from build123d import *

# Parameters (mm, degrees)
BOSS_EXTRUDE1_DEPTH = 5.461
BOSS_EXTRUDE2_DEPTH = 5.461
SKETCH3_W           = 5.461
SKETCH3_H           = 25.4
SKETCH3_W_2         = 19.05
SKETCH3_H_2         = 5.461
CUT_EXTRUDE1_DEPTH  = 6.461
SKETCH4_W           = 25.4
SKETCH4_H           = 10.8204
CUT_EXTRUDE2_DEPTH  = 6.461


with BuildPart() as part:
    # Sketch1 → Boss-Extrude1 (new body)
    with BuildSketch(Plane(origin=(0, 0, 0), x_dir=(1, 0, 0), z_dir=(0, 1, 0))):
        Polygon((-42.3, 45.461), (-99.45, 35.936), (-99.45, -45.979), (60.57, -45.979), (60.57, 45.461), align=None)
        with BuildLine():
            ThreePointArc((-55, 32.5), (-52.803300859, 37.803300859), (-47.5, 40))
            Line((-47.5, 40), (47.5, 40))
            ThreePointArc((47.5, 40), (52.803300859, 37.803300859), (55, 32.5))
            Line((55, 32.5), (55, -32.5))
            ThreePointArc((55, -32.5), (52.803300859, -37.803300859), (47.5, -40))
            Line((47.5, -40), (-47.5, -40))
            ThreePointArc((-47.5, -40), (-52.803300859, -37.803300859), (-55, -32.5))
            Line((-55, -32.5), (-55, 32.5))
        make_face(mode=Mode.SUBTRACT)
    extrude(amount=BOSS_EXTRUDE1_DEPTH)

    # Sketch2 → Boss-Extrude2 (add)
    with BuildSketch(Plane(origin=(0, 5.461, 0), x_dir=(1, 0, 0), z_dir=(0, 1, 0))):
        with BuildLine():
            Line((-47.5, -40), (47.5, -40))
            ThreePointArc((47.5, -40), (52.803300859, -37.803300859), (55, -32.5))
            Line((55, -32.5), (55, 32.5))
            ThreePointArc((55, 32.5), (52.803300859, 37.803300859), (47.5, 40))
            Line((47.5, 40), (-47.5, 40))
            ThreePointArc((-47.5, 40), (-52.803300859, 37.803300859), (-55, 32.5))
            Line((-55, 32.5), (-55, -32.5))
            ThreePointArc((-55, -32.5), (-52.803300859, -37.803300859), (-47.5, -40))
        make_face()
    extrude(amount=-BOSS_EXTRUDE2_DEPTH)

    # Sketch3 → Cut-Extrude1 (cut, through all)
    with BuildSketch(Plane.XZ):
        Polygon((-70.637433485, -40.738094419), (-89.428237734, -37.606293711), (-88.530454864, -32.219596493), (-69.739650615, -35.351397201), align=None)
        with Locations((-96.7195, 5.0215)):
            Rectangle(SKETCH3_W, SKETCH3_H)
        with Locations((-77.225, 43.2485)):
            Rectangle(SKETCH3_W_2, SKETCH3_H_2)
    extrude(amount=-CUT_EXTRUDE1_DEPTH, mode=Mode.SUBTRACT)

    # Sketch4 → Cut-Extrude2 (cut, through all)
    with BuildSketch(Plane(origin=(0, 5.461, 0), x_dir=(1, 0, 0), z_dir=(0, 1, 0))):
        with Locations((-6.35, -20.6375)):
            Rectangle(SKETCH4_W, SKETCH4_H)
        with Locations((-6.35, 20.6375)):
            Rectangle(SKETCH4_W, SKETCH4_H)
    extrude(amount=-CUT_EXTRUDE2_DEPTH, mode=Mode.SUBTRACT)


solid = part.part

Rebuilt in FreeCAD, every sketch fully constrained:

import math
import FreeCAD as App
import Part
import Sketcher
Q = App.Units.Quantity


def add_polygon(sketch, points):
    """Adds a closed chain of lines whose ends are joined by coincident constraints."""
    first, n = sketch.GeometryCount, len(points)
    for a, b in zip(points, points[1:] + points[:1]):
        sketch.addGeometry(Part.LineSegment(App.Vector(*a, 0), App.Vector(*b, 0)), False)
    for i in range(n):
        sketch.addConstraint(Sketcher.Constraint("Coincident", first + i, 2, first + (i + 1) % n, 1))

doc = App.newDocument("Part")
body = doc.addObject("PartDesign::Body", "Body")

sketch1 = doc.addObject("Sketcher::SketchObject", "Sketch")
body.addObject(sketch1)
sketch1.AttachmentSupport = (doc.XZ_Plane, [""])
sketch1.MapMode = "FlatFace"
add_polygon(sketch1, [(-42, -45), (-99, -36), (-99, 46), (61, 46), (61, -45)])
sketch1.addGeometry(Part.LineSegment(App.Vector(-55, 32, 0), App.Vector(-55, -32, 0)), False)
sketch1.addGeometry(Part.ArcOfCircle(Part.Circle(App.Vector(-48, -32, 0), App.Vector(0, 0, 1), 8), math.radians(180), math.radians(270)), False)
sketch1.addGeometry(Part.LineSegment(App.Vector(-48, -40, 0), App.Vector(48, -40, 0)), False)
sketch1.addGeometry(Part.ArcOfCircle(Part.Circle(App.Vector(48, -32, 0), App.Vector(0, 0, 1), 8), math.radians(-90), math.radians(0)), False)
sketch1.addGeometry(Part.LineSegment(App.Vector(55, -32, 0), App.Vector(55, 32, 0)), False)
sketch1.addGeometry(Part.ArcOfCircle(Part.Circle(App.Vector(48, 32, 0), App.Vector(0, 0, 1), 8), math.radians(0), math.radians(90)), False)
sketch1.addGeometry(Part.LineSegment(App.Vector(48, 40, 0), App.Vector(-48, 40, 0)), False)
sketch1.addGeometry(Part.ArcOfCircle(Part.Circle(App.Vector(-48, 32, 0), App.Vector(0, 0, 1), 8), math.radians(90), math.radians(180)), False)
sketch1.addConstraint([
    Sketcher.Constraint("Tangent", 5, 2, 6, 1),
    Sketcher.Constraint("Tangent", 6, 2, 7, 1),
    Sketcher.Constraint("Tangent", 7, 2, 8, 1),
    Sketcher.Constraint("Tangent", 8, 2, 9, 1),
    Sketcher.Constraint("Tangent", 9, 2, 10, 1),
    Sketcher.Constraint("Tangent", 10, 2, 11, 1),
    Sketcher.Constraint("Tangent", 11, 2, 12, 1),
    Sketcher.Constraint("Tangent", 12, 2, 5, 1),
    Sketcher.Constraint("Vertical", 1),
    Sketcher.Constraint("Horizontal", 2),
    Sketcher.Constraint("Vertical", 3),
    Sketcher.Constraint("Horizontal", 4),
    Sketcher.Constraint("Vertical", 5),
    Sketcher.Constraint("Horizontal", 7),
    Sketcher.Constraint("Vertical", 9),
    Sketcher.Constraint("Horizontal", 11),
    Sketcher.Constraint("Equal", 6, 8),
    Sketcher.Constraint("Equal", 8, 10),
    Sketcher.Constraint("Equal", 10, 12),
    Sketcher.Constraint("Symmetric", 6, 3, 10, 3, -1, 1),
    Sketcher.Constraint("DistanceX", 2, 1, 2, 2, Q("6.3 in")),
    Sketcher.Constraint("DistanceY", 3, 2, 3, 1, Q("3.6 in")),
    Sketcher.Constraint("DistanceX", 4, 2, 4, 1, Q("4.05 in")),
    Sketcher.Constraint("DistanceX", 5, 2, 4, 2, Q("0.5 in")),
    Sketcher.Constraint("DistanceY", 1, 1, 1, 2, Q("3.225 in")),
    Sketcher.Constraint("Radius", 6, 7.5),
    Sketcher.Constraint("DistanceY", 6, 2, 0, 2, Q("0.16 in")),
    Sketcher.Constraint("DistanceX", 7, 1, 7, 2, 95.0),
    Sketcher.Constraint("DistanceY", 5, 2, 5, 1, 65.0),
])
pad1 = doc.addObject("PartDesign::Pad", "Pad")
body.addObject(pad1)
pad1.Profile = sketch1
pad1.Length = Q("0.215 in")
pad1.Reversed = True

sketch2 = doc.addObject("Sketcher::SketchObject", "Sketch001")
body.addObject(sketch2)
sketch2.AttachmentSupport = (doc.XZ_Plane, [""])
sketch2.MapMode = "FlatFace"
sketch2.AttachmentOffset = App.Placement(App.Vector(0, 0, -0.215 * 25.4), App.Rotation())
sketch2.addGeometry([
    Part.LineSegment(App.Vector(-48, 40, 0), App.Vector(48, 40, 0)),
    Part.ArcOfCircle(Part.Circle(App.Vector(48, 32, 0), App.Vector(0, 0, 1), 8), math.radians(0), math.radians(90)),
    Part.LineSegment(App.Vector(55, 32, 0), App.Vector(55, -32, 0)),
    Part.ArcOfCircle(Part.Circle(App.Vector(48, -32, 0), App.Vector(0, 0, 1), 8), math.radians(-90), math.radians(0)),
    Part.LineSegment(App.Vector(48, -40, 0), App.Vector(-48, -40, 0)),
    Part.ArcOfCircle(Part.Circle(App.Vector(-48, -32, 0), App.Vector(0, 0, 1), 8), math.radians(180), math.radians(270)),
    Part.LineSegment(App.Vector(-55, -32, 0), App.Vector(-55, 32, 0)),
    Part.ArcOfCircle(Part.Circle(App.Vector(-48, 32, 0), App.Vector(0, 0, 1), 8), math.radians(90), math.radians(180)),
], False)
sketch2.addConstraint([
    Sketcher.Constraint("Tangent", 0, 2, 1, 2),
    Sketcher.Constraint("Tangent", 1, 1, 2, 1),
    Sketcher.Constraint("Tangent", 2, 2, 3, 2),
    Sketcher.Constraint("Tangent", 3, 1, 4, 1),
    Sketcher.Constraint("Tangent", 4, 2, 5, 2),
    Sketcher.Constraint("Tangent", 5, 1, 6, 1),
    Sketcher.Constraint("Tangent", 6, 2, 7, 2),
    Sketcher.Constraint("Tangent", 7, 1, 0, 1),
    Sketcher.Constraint("Horizontal", 0),
    Sketcher.Constraint("Vertical", 2),
    Sketcher.Constraint("Horizontal", 4),
    Sketcher.Constraint("Vertical", 6),
    Sketcher.Constraint("Equal", 1, 3),
    Sketcher.Constraint("Equal", 3, 5),
    Sketcher.Constraint("Equal", 5, 7),
    Sketcher.Constraint("Symmetric", 1, 3, 5, 3, -1, 1),
    Sketcher.Constraint("Radius", 1, 7.5),
    Sketcher.Constraint("DistanceX", 0, 1, 0, 2, 95.0),
    Sketcher.Constraint("DistanceY", 2, 2, 2, 1, 65.0),
])
pad2 = doc.addObject("PartDesign::Pad", "Pad001")
body.addObject(pad2)
pad2.Profile = sketch2
pad2.Length = Q("0.215 in")

sketch3 = doc.addObject("Sketcher::SketchObject", "Sketch002")
body.addObject(sketch3)
sketch3.AttachmentSupport = (doc.XZ_Plane, [""])
sketch3.MapMode = "FlatFace"
add_polygon(sketch3, [(-89, -38), (-71, -41), (-70, -35), (-89, -32)])
add_polygon(sketch3, [(-99, 18), (-99, -8), (-94, -8), (-94, 18)])
add_polygon(sketch3, [(-87, 46), (-87, 41), (-68, 41), (-68, 46)])
sketch3.addConstraint([
    Sketcher.Constraint("Vertical", 4),
    Sketcher.Constraint("Horizontal", 5),
    Sketcher.Constraint("Vertical", 6),
    Sketcher.Constraint("Horizontal", 7),
    Sketcher.Constraint("Vertical", 8),
    Sketcher.Constraint("Horizontal", 9),
    Sketcher.Constraint("Vertical", 10),
    Sketcher.Constraint("Horizontal", 11),
    Sketcher.Constraint("Perpendicular", 0, 1),
    Sketcher.Constraint("Perpendicular", 1, 2),
    Sketcher.Constraint("Perpendicular", 2, 3),
    Sketcher.Constraint("Equal", 7, 8),
    Sketcher.Constraint("DistanceY", 4, 2, 4, 1, Q("1 in")),
    Sketcher.Constraint("DistanceX", 9, 1, 9, 2, Q("0.75 in")),
    Sketcher.Constraint("DistanceX", 7, 2, 8, 2, Q("0.5 in")),
    Sketcher.Constraint("Distance", 0, Q("0.75 in")),
    Sketcher.Constraint("DistanceX", 5, 1, 5, 2, Q("0.215 in")),
    Sketcher.Constraint("Distance", 1, Q("0.215 in")),
    Sketcher.Constraint("DistanceY", 6, 2, 8, 2, Q("0.8975 in")),
    Sketcher.Constraint("DistanceX", 4, 2, -1, 1, 99.45),
    Sketcher.Constraint("DistanceY", 4, 2, -1, 1, 7.6785),
    Sketcher.Constraint("DistanceY", 1, 2, 2, 2, 3.131801),
    Sketcher.Constraint("DistanceX", 1, 2, -1, 1, 69.739651),
    Sketcher.Constraint("DistanceY", 0, 2, -1, 1, 40.738094),
])
pocket1 = doc.addObject("PartDesign::Pocket", "Pocket")
body.addObject(pocket1)
pocket1.Profile = sketch3
pocket1.Type = "ThroughAll"

sketch4 = doc.addObject("Sketcher::SketchObject", "Sketch003")
body.addObject(sketch4)
sketch4.AttachmentSupport = (doc.XZ_Plane, [""])
sketch4.MapMode = "FlatFace"
sketch4.AttachmentOffset = App.Placement(App.Vector(0, 0, -0.215 * 25.4), App.Rotation())
add_polygon(sketch4, [(-19, 15), (-19, 26), (6, 26), (6, 15)])
add_polygon(sketch4, [(-19, -26), (-19, -15), (6, -15), (6, -26)])
sketch4.addConstraint([
    Sketcher.Constraint("Vertical", 0),
    Sketcher.Constraint("Horizontal", 1),
    Sketcher.Constraint("Vertical", 2),
    Sketcher.Constraint("Horizontal", 3),
    Sketcher.Constraint("Vertical", 4),
    Sketcher.Constraint("Horizontal", 5),
    Sketcher.Constraint("Vertical", 6),
    Sketcher.Constraint("Horizontal", 7),
    Sketcher.Constraint("Symmetric", 3, 2, 4, 2, -1),
    Sketcher.Constraint("Symmetric", 1, 2, 6, 2, -1),
    Sketcher.Constraint("DistanceX", 1, 1, 1, 2, Q("1 in")),
    Sketcher.Constraint("DistanceY", 0, 1, 0, 2, Q("0.426 in")),
    Sketcher.Constraint("DistanceX", 0, 2, -1, 1, Q("0.75 in")),
    Sketcher.Constraint("DistanceY", 4, 2, 3, 2, Q("1.199 in")),
])
pocket2 = doc.addObject("PartDesign::Pocket", "Pocket001")
body.addObject(pocket2)
pocket2.Profile = sketch4
pocket2.Type = "ThroughAll"
pocket2.Reversed = True

doc.recompute()
